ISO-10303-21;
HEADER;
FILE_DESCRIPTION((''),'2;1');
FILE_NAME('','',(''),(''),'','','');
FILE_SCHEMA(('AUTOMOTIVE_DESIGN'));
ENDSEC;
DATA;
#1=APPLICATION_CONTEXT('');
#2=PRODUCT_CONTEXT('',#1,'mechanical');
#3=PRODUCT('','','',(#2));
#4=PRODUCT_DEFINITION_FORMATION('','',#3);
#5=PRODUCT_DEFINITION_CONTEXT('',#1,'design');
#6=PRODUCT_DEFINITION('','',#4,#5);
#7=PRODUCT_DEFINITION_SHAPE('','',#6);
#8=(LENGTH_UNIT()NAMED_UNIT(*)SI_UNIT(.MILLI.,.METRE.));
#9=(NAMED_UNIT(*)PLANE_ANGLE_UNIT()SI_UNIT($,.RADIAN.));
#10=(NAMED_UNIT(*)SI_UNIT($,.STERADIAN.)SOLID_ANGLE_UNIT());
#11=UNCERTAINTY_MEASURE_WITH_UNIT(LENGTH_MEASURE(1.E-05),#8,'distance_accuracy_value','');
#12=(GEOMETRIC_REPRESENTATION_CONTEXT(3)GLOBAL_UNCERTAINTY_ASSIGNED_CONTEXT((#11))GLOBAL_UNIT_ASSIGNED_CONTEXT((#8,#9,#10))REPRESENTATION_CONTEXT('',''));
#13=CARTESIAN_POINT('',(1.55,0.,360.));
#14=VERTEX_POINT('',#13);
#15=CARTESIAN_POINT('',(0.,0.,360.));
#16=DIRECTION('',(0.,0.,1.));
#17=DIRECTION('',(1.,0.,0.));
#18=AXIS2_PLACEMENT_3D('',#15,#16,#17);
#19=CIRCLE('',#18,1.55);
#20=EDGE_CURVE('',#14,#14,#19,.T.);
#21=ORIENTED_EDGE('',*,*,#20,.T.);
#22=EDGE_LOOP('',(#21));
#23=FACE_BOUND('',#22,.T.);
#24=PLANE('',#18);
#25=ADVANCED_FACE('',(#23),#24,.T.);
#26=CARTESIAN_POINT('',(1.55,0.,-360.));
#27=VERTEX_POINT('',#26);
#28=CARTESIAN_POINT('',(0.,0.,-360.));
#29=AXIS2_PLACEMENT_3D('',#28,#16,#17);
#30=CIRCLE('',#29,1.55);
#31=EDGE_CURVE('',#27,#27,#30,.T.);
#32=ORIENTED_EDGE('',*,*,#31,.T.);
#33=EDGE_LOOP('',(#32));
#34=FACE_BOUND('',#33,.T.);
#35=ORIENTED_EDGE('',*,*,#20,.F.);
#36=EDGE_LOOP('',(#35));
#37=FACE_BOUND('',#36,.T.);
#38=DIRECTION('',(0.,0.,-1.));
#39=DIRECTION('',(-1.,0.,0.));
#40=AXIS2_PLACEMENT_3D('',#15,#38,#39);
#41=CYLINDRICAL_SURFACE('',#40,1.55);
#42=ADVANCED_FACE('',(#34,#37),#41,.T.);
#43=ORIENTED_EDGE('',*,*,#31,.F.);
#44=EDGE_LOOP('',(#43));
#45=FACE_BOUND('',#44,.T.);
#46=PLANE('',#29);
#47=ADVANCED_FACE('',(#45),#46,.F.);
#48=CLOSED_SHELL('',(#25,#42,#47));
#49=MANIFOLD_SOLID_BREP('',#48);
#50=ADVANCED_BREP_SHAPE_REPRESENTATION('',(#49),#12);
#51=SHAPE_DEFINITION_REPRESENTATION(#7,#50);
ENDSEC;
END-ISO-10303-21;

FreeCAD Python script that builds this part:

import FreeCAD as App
import Part
import Sketcher

V = App.Vector
Q = App.Units.Quantity

doc = App.newDocument("Part")
body = doc.addObject("PartDesign::Body", "Body")

# Sketch on XY plane
sketch1 = body.newObject("Sketcher::SketchObject", "Sketch")
sketch1.AttachmentSupport = (doc.getObject("XY_Plane"), [""])
sketch1.MapMode = "FlatFace"
sketch1.addGeometry(Part.Circle(V(0, 0, 0), V(0, 0, 1), 1.6), False)
sketch1.addConstraint(Sketcher.Constraint("Coincident", 0, 3, -1, 1))
sketch1.addConstraint(Sketcher.Constraint("Diameter", 0, Q("3.1 mm")))
pad1 = body.newObject("PartDesign::Pad", "Pad")
pad1.Profile = sketch1
pad1.Length = 720
pad1.Midplane = True

doc.recompute()
